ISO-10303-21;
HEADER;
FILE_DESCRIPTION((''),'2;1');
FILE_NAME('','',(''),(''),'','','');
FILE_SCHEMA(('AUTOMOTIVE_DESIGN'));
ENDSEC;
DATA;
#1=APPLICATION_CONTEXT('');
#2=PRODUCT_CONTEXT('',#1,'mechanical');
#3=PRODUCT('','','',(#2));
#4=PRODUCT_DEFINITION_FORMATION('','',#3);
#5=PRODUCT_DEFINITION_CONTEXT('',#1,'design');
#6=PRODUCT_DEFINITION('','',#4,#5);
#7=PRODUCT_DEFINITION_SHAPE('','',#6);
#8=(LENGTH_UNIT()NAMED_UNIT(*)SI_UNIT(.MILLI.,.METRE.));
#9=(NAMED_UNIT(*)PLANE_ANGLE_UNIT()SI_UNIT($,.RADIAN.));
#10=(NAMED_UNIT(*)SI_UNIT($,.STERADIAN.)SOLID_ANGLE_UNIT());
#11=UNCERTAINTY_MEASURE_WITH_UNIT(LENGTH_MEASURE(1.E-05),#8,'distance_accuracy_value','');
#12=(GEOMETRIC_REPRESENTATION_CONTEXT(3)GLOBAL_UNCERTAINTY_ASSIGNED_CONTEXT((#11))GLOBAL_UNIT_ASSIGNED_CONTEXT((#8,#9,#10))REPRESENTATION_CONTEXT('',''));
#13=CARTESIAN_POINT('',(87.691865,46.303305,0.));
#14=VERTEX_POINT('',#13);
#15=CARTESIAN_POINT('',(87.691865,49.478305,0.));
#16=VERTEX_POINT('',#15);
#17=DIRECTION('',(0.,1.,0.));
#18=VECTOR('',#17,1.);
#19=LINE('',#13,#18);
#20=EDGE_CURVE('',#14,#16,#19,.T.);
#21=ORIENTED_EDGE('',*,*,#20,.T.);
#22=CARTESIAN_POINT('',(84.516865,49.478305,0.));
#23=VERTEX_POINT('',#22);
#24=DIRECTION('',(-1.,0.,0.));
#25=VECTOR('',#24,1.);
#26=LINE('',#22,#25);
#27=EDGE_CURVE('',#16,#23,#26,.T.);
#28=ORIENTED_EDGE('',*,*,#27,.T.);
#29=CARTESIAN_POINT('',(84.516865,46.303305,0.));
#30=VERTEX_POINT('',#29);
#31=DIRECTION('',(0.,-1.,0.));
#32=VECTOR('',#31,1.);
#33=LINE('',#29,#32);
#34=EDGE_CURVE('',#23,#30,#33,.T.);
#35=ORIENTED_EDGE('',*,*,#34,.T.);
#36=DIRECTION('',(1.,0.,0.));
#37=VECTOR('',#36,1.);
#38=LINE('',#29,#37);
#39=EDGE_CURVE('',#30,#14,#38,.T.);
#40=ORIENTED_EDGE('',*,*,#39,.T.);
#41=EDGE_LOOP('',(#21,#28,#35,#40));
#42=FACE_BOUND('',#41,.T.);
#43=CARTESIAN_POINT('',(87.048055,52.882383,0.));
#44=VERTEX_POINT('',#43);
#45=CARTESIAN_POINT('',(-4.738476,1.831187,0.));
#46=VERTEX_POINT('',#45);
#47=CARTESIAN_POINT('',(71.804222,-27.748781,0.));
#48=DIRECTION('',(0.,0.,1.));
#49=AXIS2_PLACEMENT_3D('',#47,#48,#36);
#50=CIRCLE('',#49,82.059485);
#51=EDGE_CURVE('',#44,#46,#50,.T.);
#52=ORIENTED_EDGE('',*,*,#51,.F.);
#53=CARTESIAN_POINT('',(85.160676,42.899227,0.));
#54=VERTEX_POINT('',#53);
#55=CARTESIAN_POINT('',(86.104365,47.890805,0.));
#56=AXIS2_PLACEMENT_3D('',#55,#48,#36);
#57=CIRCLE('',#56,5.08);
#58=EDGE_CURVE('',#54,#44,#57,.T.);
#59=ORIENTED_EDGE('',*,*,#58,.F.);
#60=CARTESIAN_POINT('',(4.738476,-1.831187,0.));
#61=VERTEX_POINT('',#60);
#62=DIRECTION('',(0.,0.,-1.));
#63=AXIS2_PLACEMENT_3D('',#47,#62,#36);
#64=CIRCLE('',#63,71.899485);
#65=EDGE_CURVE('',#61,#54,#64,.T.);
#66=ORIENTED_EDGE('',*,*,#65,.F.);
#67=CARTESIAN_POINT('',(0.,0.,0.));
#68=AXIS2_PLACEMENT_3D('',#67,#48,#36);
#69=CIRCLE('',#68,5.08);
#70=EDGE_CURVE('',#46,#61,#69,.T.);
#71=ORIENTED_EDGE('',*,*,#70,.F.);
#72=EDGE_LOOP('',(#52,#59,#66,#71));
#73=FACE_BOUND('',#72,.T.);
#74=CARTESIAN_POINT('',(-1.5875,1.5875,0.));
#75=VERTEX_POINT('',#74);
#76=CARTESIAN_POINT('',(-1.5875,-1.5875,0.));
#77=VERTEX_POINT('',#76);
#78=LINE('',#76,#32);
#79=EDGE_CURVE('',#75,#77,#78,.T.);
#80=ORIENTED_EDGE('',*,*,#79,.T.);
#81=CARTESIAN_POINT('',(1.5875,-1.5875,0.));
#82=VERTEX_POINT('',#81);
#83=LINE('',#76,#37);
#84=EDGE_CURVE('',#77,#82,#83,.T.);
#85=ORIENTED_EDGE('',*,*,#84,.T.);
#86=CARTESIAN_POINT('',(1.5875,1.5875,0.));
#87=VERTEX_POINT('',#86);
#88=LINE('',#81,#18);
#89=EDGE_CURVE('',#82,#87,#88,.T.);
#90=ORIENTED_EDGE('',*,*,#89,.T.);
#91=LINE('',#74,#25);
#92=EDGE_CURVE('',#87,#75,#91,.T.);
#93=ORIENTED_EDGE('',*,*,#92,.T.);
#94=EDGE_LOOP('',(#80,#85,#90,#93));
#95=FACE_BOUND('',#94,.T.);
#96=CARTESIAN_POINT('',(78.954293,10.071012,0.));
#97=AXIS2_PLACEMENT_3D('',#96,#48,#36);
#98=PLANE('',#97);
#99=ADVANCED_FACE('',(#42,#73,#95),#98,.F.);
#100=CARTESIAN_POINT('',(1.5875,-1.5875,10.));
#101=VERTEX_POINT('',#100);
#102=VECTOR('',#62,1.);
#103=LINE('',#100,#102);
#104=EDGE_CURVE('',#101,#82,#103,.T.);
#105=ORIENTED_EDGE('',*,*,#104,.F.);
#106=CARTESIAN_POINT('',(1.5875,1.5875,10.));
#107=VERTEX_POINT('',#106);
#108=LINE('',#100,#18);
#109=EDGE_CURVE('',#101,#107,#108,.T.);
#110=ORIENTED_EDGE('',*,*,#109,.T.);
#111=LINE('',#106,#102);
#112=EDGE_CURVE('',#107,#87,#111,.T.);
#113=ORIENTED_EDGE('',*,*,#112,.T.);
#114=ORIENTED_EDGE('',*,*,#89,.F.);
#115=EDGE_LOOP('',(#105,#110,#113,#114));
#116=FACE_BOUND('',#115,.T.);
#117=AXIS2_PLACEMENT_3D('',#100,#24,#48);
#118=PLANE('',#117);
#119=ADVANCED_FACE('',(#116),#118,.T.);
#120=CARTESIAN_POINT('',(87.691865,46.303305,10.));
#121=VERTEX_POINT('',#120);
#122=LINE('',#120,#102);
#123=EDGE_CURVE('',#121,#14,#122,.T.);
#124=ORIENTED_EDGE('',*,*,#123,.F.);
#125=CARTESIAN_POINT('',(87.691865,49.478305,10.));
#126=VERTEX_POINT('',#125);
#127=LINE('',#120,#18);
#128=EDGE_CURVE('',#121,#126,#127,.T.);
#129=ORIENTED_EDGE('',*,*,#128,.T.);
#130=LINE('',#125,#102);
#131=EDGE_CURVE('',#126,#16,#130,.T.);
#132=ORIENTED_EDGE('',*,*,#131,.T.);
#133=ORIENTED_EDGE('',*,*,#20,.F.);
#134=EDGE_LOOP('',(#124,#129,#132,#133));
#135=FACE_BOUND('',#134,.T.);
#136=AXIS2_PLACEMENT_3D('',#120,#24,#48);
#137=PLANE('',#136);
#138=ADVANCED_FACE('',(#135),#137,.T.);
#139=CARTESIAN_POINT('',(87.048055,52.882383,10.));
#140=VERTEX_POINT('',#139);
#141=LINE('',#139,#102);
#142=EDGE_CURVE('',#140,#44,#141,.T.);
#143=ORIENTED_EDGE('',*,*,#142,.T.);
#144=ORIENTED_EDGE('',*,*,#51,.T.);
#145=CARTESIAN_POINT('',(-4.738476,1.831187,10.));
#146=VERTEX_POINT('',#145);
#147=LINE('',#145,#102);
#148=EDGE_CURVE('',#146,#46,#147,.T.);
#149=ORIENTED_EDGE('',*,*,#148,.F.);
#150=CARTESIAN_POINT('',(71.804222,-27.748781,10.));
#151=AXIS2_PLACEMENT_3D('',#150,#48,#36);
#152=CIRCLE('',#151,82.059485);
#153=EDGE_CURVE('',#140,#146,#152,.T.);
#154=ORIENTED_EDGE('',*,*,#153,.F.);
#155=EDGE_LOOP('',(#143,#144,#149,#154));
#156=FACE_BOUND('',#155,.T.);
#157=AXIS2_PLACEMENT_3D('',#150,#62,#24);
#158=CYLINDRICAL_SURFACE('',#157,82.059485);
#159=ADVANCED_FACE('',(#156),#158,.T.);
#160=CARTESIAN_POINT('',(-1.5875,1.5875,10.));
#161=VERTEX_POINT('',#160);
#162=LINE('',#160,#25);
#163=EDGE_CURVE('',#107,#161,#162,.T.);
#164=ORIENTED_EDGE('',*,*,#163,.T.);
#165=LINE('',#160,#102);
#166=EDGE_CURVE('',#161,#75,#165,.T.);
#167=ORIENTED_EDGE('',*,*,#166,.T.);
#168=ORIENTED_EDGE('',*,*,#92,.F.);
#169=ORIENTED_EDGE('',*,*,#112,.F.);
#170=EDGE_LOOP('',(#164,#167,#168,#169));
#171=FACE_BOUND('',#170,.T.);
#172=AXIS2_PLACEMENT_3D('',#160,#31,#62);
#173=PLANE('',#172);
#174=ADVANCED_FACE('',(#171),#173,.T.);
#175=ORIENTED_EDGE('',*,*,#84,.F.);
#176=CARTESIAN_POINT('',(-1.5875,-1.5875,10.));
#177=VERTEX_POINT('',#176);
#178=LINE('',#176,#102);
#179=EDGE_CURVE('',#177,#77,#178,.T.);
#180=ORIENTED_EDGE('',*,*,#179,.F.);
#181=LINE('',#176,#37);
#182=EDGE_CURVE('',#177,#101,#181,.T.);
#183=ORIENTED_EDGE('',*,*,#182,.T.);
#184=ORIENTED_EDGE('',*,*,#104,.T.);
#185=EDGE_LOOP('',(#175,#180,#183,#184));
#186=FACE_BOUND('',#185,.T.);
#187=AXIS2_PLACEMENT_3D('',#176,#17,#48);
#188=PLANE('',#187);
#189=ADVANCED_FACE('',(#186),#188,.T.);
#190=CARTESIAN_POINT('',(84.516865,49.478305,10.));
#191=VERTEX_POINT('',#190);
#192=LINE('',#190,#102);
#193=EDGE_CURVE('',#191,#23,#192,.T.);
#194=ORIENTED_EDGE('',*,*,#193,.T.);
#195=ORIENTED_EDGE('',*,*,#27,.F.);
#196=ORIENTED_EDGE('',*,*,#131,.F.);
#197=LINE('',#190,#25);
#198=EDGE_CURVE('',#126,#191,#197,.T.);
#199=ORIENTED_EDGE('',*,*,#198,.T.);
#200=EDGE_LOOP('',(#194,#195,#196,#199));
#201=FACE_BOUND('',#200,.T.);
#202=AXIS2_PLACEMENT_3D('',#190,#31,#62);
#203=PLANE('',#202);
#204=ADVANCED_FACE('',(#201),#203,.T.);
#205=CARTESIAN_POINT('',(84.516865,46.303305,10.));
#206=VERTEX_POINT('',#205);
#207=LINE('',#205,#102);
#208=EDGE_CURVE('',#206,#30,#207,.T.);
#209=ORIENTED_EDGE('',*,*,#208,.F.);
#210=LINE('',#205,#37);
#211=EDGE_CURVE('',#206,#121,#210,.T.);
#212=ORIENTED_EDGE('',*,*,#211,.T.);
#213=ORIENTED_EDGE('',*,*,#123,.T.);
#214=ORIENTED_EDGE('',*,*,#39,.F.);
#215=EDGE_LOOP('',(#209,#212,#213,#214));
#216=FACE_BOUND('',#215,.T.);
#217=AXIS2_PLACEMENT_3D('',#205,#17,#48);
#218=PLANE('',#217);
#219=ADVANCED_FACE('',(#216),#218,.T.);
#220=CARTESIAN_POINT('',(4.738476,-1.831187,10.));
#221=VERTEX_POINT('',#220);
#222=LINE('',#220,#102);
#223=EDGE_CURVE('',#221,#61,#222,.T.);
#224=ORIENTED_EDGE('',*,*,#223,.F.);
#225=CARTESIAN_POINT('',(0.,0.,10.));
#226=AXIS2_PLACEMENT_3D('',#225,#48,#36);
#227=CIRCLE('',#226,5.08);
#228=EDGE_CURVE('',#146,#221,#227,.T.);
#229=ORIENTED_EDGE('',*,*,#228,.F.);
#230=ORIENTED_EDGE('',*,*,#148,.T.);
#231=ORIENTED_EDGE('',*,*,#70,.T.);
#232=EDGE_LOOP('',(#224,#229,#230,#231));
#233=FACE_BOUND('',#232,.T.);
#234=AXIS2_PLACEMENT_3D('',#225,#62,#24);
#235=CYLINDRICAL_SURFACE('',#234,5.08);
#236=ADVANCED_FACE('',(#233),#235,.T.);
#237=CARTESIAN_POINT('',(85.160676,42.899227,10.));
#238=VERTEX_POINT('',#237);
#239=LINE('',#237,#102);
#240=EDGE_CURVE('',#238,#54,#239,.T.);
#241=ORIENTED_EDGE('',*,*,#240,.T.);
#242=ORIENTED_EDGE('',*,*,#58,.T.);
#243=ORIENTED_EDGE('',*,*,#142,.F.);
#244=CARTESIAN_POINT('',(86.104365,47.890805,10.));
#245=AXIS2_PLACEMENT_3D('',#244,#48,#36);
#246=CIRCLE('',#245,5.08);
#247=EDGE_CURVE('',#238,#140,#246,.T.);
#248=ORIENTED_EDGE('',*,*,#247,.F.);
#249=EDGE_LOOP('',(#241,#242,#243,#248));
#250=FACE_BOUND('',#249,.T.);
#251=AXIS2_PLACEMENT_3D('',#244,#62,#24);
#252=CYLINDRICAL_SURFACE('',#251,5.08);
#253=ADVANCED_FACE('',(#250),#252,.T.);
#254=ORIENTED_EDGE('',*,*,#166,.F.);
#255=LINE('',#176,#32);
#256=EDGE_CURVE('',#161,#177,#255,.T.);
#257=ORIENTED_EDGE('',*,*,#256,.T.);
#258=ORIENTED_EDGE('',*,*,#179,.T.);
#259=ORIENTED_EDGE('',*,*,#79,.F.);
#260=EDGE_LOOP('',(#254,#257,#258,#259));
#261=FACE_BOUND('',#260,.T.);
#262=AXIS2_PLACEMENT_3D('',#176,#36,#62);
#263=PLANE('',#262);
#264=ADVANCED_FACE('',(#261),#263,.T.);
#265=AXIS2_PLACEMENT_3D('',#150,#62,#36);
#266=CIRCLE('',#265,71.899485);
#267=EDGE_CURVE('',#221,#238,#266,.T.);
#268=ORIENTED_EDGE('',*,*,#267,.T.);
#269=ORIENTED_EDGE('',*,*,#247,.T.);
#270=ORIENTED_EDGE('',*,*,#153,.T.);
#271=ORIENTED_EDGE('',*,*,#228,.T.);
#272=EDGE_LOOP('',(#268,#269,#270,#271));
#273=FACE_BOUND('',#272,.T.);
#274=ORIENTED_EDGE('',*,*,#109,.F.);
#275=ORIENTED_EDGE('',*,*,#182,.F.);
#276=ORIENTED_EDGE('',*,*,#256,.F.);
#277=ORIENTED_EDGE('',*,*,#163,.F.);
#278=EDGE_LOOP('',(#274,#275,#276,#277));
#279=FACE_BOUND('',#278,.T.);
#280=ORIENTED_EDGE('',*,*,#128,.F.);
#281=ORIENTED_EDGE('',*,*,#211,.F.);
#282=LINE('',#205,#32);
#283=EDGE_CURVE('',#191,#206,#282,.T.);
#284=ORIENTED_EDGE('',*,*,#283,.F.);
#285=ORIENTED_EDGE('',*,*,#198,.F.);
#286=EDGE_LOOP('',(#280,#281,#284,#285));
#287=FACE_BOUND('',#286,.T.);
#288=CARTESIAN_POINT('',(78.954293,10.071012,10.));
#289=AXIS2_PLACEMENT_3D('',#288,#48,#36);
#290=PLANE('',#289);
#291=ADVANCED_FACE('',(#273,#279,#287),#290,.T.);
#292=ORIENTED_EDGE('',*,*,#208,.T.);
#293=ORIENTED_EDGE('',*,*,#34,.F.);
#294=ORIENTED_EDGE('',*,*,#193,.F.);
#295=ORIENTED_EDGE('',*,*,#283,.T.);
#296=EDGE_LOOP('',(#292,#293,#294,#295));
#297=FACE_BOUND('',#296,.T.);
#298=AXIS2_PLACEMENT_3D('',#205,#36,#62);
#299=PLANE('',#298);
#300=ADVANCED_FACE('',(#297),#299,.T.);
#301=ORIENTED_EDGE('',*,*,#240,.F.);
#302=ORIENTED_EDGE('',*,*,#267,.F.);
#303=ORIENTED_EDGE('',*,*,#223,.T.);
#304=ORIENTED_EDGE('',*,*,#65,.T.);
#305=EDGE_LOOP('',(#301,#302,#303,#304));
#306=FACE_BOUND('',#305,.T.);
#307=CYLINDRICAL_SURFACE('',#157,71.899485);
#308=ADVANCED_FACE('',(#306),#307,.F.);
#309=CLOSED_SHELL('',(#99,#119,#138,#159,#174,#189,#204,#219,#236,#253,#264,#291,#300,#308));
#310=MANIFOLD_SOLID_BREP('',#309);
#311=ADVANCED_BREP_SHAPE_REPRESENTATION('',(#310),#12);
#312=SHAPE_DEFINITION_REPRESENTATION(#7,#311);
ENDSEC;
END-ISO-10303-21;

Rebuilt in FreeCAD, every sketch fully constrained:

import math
import FreeCAD as App
import Part
import Sketcher
Q = App.Units.Quantity


def add_polygon(sketch, points):
    """Adds a closed chain of lines whose ends are joined by coincident constraints."""
    first, n = sketch.GeometryCount, len(points)
    for a, b in zip(points, points[1:] + points[:1]):
        sketch.addGeometry(Part.LineSegment(App.Vector(*a, 0), App.Vector(*b, 0)), False)
    for i in range(n):
        sketch.addConstraint(Sketcher.Constraint("Coincident", first + i, 2, first + (i + 1) % n, 1))

doc = App.newDocument("Part")
body = doc.addObject("PartDesign::Body", "Body")

# Sketch on XY plane
sketch1 = body.newObject("Sketcher::SketchObject", "Sketch")
sketch1.AttachmentSupport = (doc.getObject("XY_Plane"), [""])
sketch1.MapMode = "FlatFace"
sketch1.addGeometry(Part.ArcOfCircle(Part.Circle(App.Vector(71.8, -27.7, 0), App.Vector(0, 0, 1), 82.1), math.radians(79), math.radians(159)), False)  # 0
sketch1.addGeometry(Part.ArcOfCircle(Part.Circle(App.Vector(0, 0, 0), App.Vector(0, 0, 1), 5.1), math.radians(159), math.radians(339)), False)  # 1
sketch1.addGeometry(Part.ArcOfCircle(Part.Circle(App.Vector(71.8, -27.7, 0), App.Vector(0, 0, 1), 71.9), math.radians(79), math.radians(159)), False)  # 2
sketch1.addGeometry(Part.ArcOfCircle(Part.Circle(App.Vector(86.1, 47.9, 0), App.Vector(0, 0, 1), 5.1), math.radians(-101), math.radians(79)), False)  # 3
add_polygon(sketch1, [(1.6, -1.6), (-1.6, -1.6), (-1.6, 1.6), (1.6, 1.6)])  # lines 4-7
add_polygon(sketch1, [(87.7, 46.3), (84.5, 46.3), (84.5, 49.5), (87.7, 49.5)])  # lines 8-11
sketch1.addConstraint([
    Sketcher.Constraint("Tangent", 0, 2, 1, 1),
    Sketcher.Constraint("Tangent", 1, 2, 2, 2),
    Sketcher.Constraint("Tangent", 2, 1, 3, 1),
    Sketcher.Constraint("Tangent", 3, 2, 0, 1),
    Sketcher.Constraint("Horizontal", 4),
    Sketcher.Constraint("Vertical", 5),
    Sketcher.Constraint("Horizontal", 6),
    Sketcher.Constraint("Vertical", 7),
    Sketcher.Constraint("Horizontal", 8),
    Sketcher.Constraint("Vertical", 9),
    Sketcher.Constraint("Horizontal", 10),
    Sketcher.Constraint("Vertical", 11),
    Sketcher.Constraint("Coincident", 1, 3, -1, 1),
    Sketcher.Constraint("Coincident", 2, 3, 0, 3),
    Sketcher.Constraint("Symmetric", 4, 2, 6, 2, -1, 1),
    Sketcher.Constraint("Equal", 6, 8),
    Sketcher.Constraint("Equal", 10, 5),
    Sketcher.Constraint("Equal", 7, 9),
    Sketcher.Constraint("Radius", 1, Q("0.2 in")),
    Sketcher.Constraint("DistanceX", 4, 2, 4, 1, Q("0.125 in")),
    Sketcher.Constraint("DistanceX", 8, 2, 3, 3, Q("0.0625 in")),
    Sketcher.Constraint("DistanceY", 8, 2, 3, 3, Q("0.0625 in")),
    Sketcher.Constraint("Radius", 0, 82.059485),
    Sketcher.Constraint("DistanceX", 1, 2, 2, 1, 80.4222),
    Sketcher.Constraint("DistanceX", -1, 1, 0, 3, 71.804222),
])
pad1 = body.newObject("PartDesign::Pad", "Pad")
pad1.Profile = sketch1
pad1.Length = 10

doc.recompute()
